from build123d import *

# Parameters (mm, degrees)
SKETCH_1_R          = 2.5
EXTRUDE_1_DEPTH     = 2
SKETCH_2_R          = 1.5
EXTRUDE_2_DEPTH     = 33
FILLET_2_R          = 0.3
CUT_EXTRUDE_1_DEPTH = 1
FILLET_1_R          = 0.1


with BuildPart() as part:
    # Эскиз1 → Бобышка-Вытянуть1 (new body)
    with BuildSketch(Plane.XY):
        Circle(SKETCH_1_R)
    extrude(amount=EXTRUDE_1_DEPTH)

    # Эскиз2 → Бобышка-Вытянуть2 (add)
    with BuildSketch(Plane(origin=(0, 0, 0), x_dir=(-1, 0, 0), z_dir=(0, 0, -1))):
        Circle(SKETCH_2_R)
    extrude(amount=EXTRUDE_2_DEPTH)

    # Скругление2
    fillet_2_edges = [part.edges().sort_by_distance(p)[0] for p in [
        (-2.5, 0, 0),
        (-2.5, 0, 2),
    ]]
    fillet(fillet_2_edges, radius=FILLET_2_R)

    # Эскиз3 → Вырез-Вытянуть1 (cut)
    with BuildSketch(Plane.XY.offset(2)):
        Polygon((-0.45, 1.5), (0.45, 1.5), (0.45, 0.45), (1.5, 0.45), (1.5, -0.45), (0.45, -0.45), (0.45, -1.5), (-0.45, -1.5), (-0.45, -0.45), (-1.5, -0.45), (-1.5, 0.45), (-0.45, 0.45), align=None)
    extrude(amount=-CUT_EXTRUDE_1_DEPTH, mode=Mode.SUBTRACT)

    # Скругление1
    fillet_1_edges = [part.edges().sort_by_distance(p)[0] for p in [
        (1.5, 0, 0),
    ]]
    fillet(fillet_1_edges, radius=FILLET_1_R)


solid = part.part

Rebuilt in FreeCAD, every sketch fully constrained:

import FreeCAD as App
import Part
import Sketcher
from FreeCAD import Vector
Q = App.Units.Quantity


def edges_at(feature, points):
    """Names of the edges that pass closest to the given points."""
    edges = feature.Shape.Edges
    near = lambda p: min(range(len(edges)), key=lambda i: edges[i].distToShape(Part.Vertex(*p))[0])
    return sorted({f"Edge{near(p) + 1}" for p in points})

doc = App.newDocument("Part")
body = doc.addObject("PartDesign::Body", "Body")

# Sketch on XY plane
sketch1 = doc.addObject("Sketcher::SketchObject", "Sketch")
body.addObject(sketch1)
sketch1.AttachmentSupport = (doc.XY_Plane, [""])
sketch1.MapMode = "FlatFace"
sketch1.addGeometry(Part.Circle(Vector(0, 0, 0), Vector(0, 0, 1), 2.5), False)
sketch1.addConstraint([
    Sketcher.Constraint("Coincident", 0, 3, -1, 1),
    Sketcher.Constraint("Diameter", 0, Q("5 mm")),
])
pad1 = doc.addObject("PartDesign::Pad", "Pad")
body.addObject(pad1)
pad1.Profile = sketch1
pad1.Length = 2

# Sketch on XY plane
sketch2 = doc.addObject("Sketcher::SketchObject", "Sketch001")
body.addObject(sketch2)
sketch2.AttachmentSupport = (doc.XY_Plane, [""])
sketch2.MapMode = "FlatFace"
sketch2.addGeometry(Part.Circle(Vector(0, 0, 0), Vector(0, 0, 1), 1.5), False)
sketch2.addConstraint([
    Sketcher.Constraint("Coincident", 0, 3, -1, 1),
    Sketcher.Constraint("Diameter", 0, Q("3 mm")),
])
pad2 = doc.addObject("PartDesign::Pad", "Pad001")
body.addObject(pad2)
pad2.Profile = sketch2
pad2.Length = 33
pad2.Reversed = True
doc.recompute()

fillet = doc.addObject("PartDesign::Fillet", "Fillet")
body.addObject(fillet)
fillet.Base = (pad2, edges_at(pad2, [(-2.5, 0, 0), (-2.5, 0, 2)]))
fillet.Radius = 0.3

# Sketch on XY plane
sketch3 = doc.addObject("Sketcher::SketchObject", "Sketch002")
body.addObject(sketch3)
sketch3.AttachmentSupport = (doc.XY_Plane, [""])
sketch3.MapMode = "FlatFace"
sketch3.AttachmentOffset = App.Placement(Vector(0, 0, 2), App.Rotation())
sketch3.addGeometry([
    Part.LineSegment(Vector(0.5, 1.5, 0), Vector(-0.5, 1.5, 0)),  # 0
    Part.LineSegment(Vector(-0.5, 1.5, 0), Vector(-0.5, 0.5, 0)),  # 1
    Part.LineSegment(Vector(-0.5, 0.5, 0), Vector(-1.5, 0.5, 0)),  # 2
    Part.LineSegment(Vector(-1.5, 0.5, 0), Vector(-1.5, -0.5, 0)),  # 3
    Part.LineSegment(Vector(-1.5, -0.5, 0), Vector(-0.5, -0.5, 0)),  # 4
    Part.LineSegment(Vector(-0.5, -0.5, 0), Vector(-0.5, -1.5, 0)),  # 5
    Part.LineSegment(Vector(-0.5, -1.5, 0), Vector(0.5, -1.5, 0)),  # 6
    Part.LineSegment(Vector(0.5, -1.5, 0), Vector(0.5, -0.5, 0)),  # 7
    Part.LineSegment(Vector(0.5, -0.5, 0), Vector(1.5, -0.5, 0)),  # 8
    Part.LineSegment(Vector(1.5, -0.5, 0), Vector(1.5, 0.5, 0)),  # 9
    Part.LineSegment(Vector(1.5, 0.5, 0), Vector(0.5, 0.5, 0)),  # 10
    Part.LineSegment(Vector(0.5, 0.5, 0), Vector(0.5, 1.5, 0)),  # 11
], False)
sketch3.addConstraint([
    Sketcher.Constraint("Coincident", 0, 2, 1, 1),
    Sketcher.Constraint("Coincident", 1, 2, 2, 1),
    Sketcher.Constraint("Coincident", 2, 2, 3, 1),
    Sketcher.Constraint("Coincident", 3, 2, 4, 1),
    Sketcher.Constraint("Coincident", 4, 2, 5, 1),
    Sketcher.Constraint("Coincident", 5, 2, 6, 1),
    Sketcher.Constraint("Coincident", 6, 2, 7, 1),
    Sketcher.Constraint("Coincident", 7, 2, 8, 1),
    Sketcher.Constraint("Coincident", 8, 2, 9, 1),
    Sketcher.Constraint("Coincident", 9, 2, 10, 1),
    Sketcher.Constraint("Coincident", 10, 2, 11, 1),
    Sketcher.Constraint("Coincident", 11, 2, 0, 1),
    Sketcher.Constraint("Horizontal", 0),
    Sketcher.Constraint("Vertical", 1),
    Sketcher.Constraint("Horizontal", 2),
    Sketcher.Constraint("Vertical", 3),
    Sketcher.Constraint("Horizontal", 4),
    Sketcher.Constraint("Vertical", 5),
    Sketcher.Constraint("Horizontal", 6),
    Sketcher.Constraint("Vertical", 7),
    Sketcher.Constraint("Horizontal", 8),
    Sketcher.Constraint("Vertical", 9),
    Sketcher.Constraint("Horizontal", 10),
    Sketcher.Constraint("Vertical", 11),
    Sketcher.Constraint("Symmetric", 0, 2, 6, 2, -1, 1),
    Sketcher.Constraint("Symmetric", 2, 2, 8, 2, -1, 1),
    Sketcher.Constraint("Symmetric", 4, 2, 10, 2, -1, 1),
    Sketcher.Constraint("Symmetric", 4, 2, 7, 2, -2),
    Sketcher.Constraint("Equal", 10, 1),
    Sketcher.Constraint("Equal", 6, 3),
    Sketcher.Constraint("DistanceX", 0, 2, 0, 1, Q("0.9 mm")),
    Sketcher.Constraint("DistanceY", 5, 2, 0, 2, Q("3 mm")),
])
pocket1 = doc.addObject("PartDesign::Pocket", "Pocket")
body.addObject(pocket1)
pocket1.Profile = sketch3
pocket1.Length = 1
doc.recompute()

fillet2 = doc.addObject("PartDesign::Fillet", "Fillet001")
body.addObject(fillet2)
fillet2.Base = (pocket1, edges_at(pocket1, [(1.5, 0, 0)]))
fillet2.Radius = 0.1

doc.recompute()
